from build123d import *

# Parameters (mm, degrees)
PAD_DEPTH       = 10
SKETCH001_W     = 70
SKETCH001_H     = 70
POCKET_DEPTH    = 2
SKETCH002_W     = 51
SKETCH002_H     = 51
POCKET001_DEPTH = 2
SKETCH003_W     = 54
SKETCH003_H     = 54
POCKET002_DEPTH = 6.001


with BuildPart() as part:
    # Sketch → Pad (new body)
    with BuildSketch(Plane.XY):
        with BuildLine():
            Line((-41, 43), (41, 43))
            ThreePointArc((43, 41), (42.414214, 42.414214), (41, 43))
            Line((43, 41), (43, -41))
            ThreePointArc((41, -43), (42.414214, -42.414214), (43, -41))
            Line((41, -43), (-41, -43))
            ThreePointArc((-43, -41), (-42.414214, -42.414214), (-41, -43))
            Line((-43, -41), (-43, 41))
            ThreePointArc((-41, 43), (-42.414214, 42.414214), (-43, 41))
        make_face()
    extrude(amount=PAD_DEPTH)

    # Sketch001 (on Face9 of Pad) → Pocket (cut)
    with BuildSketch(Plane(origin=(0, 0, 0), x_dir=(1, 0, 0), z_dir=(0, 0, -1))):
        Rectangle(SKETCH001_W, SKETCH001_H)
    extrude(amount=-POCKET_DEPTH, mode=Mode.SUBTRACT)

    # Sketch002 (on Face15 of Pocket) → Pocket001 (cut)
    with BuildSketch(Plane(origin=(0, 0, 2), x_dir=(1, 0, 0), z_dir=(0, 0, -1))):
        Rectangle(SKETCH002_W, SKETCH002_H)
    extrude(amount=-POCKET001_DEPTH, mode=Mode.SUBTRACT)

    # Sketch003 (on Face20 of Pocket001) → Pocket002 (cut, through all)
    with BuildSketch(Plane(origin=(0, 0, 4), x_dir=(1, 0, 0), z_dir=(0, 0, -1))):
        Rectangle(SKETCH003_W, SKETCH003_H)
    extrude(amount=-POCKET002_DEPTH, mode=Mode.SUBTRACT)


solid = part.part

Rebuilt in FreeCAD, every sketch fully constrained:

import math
import FreeCAD as App
import Part
import Sketcher

doc = App.newDocument("Part")
body = doc.addObject("PartDesign::Body", "Body")

sketch1 = body.newObject("Sketcher::SketchObject", "Sketch")
sketch1.AttachmentSupport = (doc.getObject("XY_Plane"), [""])
sketch1.MapMode = "FlatFace"
sketch1.addGeometry([
    Part.LineSegment(App.Vector(41, 43, 0), App.Vector(-41, 43, 0)),
    Part.ArcOfCircle(Part.Circle(App.Vector(-41, 41, 0), App.Vector(0, 0, 1), 2), math.radians(90), math.radians(180)),
    Part.LineSegment(App.Vector(-43, 41, 0), App.Vector(-43, -41, 0)),
    Part.ArcOfCircle(Part.Circle(App.Vector(-41, -41, 0), App.Vector(0, 0, 1), 2), math.radians(180), math.radians(270)),
    Part.LineSegment(App.Vector(-41, -43, 0), App.Vector(41, -43, 0)),
    Part.ArcOfCircle(Part.Circle(App.Vector(41, -41, 0), App.Vector(0, 0, 1), 2), math.radians(-90), math.radians(0)),
    Part.LineSegment(App.Vector(43, -41, 0), App.Vector(43, 41, 0)),
    Part.ArcOfCircle(Part.Circle(App.Vector(41, 41, 0), App.Vector(0, 0, 1), 2), math.radians(0), math.radians(90)),
], False)
sketch1.addConstraint([
    Sketcher.Constraint("Tangent", 0, 2, 1, 1),
    Sketcher.Constraint("Tangent", 1, 2, 2, 1),
    Sketcher.Constraint("Tangent", 2, 2, 3, 1),
    Sketcher.Constraint("Tangent", 3, 2, 4, 1),
    Sketcher.Constraint("Tangent", 4, 2, 5, 1),
    Sketcher.Constraint("Tangent", 5, 2, 6, 1),
    Sketcher.Constraint("Tangent", 6, 2, 7, 1),
    Sketcher.Constraint("Tangent", 7, 2, 0, 1),
    Sketcher.Constraint("Horizontal", 0),
    Sketcher.Constraint("Vertical", 2),
    Sketcher.Constraint("Horizontal", 4),
    Sketcher.Constraint("Vertical", 6),
    Sketcher.Constraint("Equal", 1, 3),
    Sketcher.Constraint("Equal", 3, 5),
    Sketcher.Constraint("Equal", 5, 7),
    Sketcher.Constraint("Symmetric", 1, 3, 5, 3, -1, 1),
    Sketcher.Constraint("Equal", 4, 2),
    Sketcher.Constraint("Radius", 1, 1.999999),
    Sketcher.Constraint("DistanceX", 0, 2, 0, 1, 82.0),
])
pad1 = body.newObject("PartDesign::Pad", "Pad")
pad1.Profile = sketch1
pad1.Length = 10

sketch2 = body.newObject("Sketcher::SketchObject", "Sketch001")
sketch2.AttachmentSupport = (doc.getObject("XY_Plane"), [""])
sketch2.MapMode = "FlatFace"
sketch2.addGeometry([
    Part.LineSegment(App.Vector(-35, -35, 0), App.Vector(-35, 35, 0)),
    Part.LineSegment(App.Vector(-35, 35, 0), App.Vector(35, 35, 0)),
    Part.LineSegment(App.Vector(35, 35, 0), App.Vector(35, -35, 0)),
    Part.LineSegment(App.Vector(35, -35, 0), App.Vector(-35, -35, 0)),
], False)
sketch2.addConstraint([
    Sketcher.Constraint("Coincident", 0, 2, 1, 1),
    Sketcher.Constraint("Coincident", 1, 2, 2, 1),
    Sketcher.Constraint("Coincident", 2, 2, 3, 1),
    Sketcher.Constraint("Coincident", 3, 2, 0, 1),
    Sketcher.Constraint("Vertical", 0),
    Sketcher.Constraint("Horizontal", 1),
    Sketcher.Constraint("Vertical", 2),
    Sketcher.Constraint("Horizontal", 3),
    Sketcher.Constraint("Symmetric", 0, 2, 2, 2, -1, 1),
    Sketcher.Constraint("Equal", 3, 0),
    Sketcher.Constraint("DistanceX", 1, 1, 1, 2, 70.0),
])
pocket1 = body.newObject("PartDesign::Pocket", "Pocket")
pocket1.Profile = sketch2
pocket1.Length = 2
pocket1.Reversed = True

sketch3 = body.newObject("Sketcher::SketchObject", "Sketch002")
sketch3.AttachmentSupport = (doc.getObject("XY_Plane"), [""])
sketch3.MapMode = "FlatFace"
sketch3.AttachmentOffset = App.Placement(App.Vector(0, 0, 2), App.Rotation())
sketch3.addGeometry([
    Part.LineSegment(App.Vector(-26, -26, 0), App.Vector(-26, 26, 0)),
    Part.LineSegment(App.Vector(-26, 26, 0), App.Vector(26, 26, 0)),
    Part.LineSegment(App.Vector(26, 26, 0), App.Vector(26, -26, 0)),
    Part.LineSegment(App.Vector(26, -26, 0), App.Vector(-26, -26, 0)),
], False)
sketch3.addConstraint([
    Sketcher.Constraint("Coincident", 0, 2, 1, 1),
    Sketcher.Constraint("Coincident", 1, 2, 2, 1),
    Sketcher.Constraint("Coincident", 2, 2, 3, 1),
    Sketcher.Constraint("Coincident", 3, 2, 0, 1),
    Sketcher.Constraint("Vertical", 0),
    Sketcher.Constraint("Horizontal", 1),
    Sketcher.Constraint("Vertical", 2),
    Sketcher.Constraint("Horizontal", 3),
    Sketcher.Constraint("Symmetric", 0, 2, 2, 2, -1, 1),
    Sketcher.Constraint("Equal", 3, 0),
    Sketcher.Constraint("DistanceX", 1, 1, 1, 2, 51.0),
])
pocket2 = body.newObject("PartDesign::Pocket", "Pocket001")
pocket2.Profile = sketch3
pocket2.Length = 2
pocket2.Reversed = True

sketch4 = body.newObject("Sketcher::SketchObject", "Sketch003")
sketch4.AttachmentSupport = (doc.getObject("XY_Plane"), [""])
sketch4.MapMode = "FlatFace"
sketch4.AttachmentOffset = App.Placement(App.Vector(0, 0, 4), App.Rotation())
sketch4.addGeometry([
    Part.LineSegment(App.Vector(-27, -27, 0), App.Vector(-27, 27, 0)),
    Part.LineSegment(App.Vector(-27, 27, 0), App.Vector(27, 27, 0)),
    Part.LineSegment(App.Vector(27, 27, 0), App.Vector(27, -27, 0)),
    Part.LineSegment(App.Vector(27, -27, 0), App.Vector(-27, -27, 0)),
], False)
sketch4.addConstraint([
    Sketcher.Constraint("Coincident", 0, 2, 1, 1),
    Sketcher.Constraint("Coincident", 1, 2, 2, 1),
    Sketcher.Constraint("Coincident", 2, 2, 3, 1),
    Sketcher.Constraint("Coincident", 3, 2, 0, 1),
    Sketcher.Constraint("Vertical", 0),
    Sketcher.Constraint("Horizontal", 1),
    Sketcher.Constraint("Vertical", 2),
    Sketcher.Constraint("Horizontal", 3),
    Sketcher.Constraint("Symmetric", 0, 2, 2, 2, -1, 1),
    Sketcher.Constraint("Equal", 3, 0),
    Sketcher.Constraint("DistanceX", 1, 1, 1, 2, 54.0),
])
pocket3 = body.newObject("PartDesign::Pocket", "Pocket002")
pocket3.Profile = sketch4
pocket3.Type = "ThroughAll"
pocket3.Reversed = True

doc.recompute()
